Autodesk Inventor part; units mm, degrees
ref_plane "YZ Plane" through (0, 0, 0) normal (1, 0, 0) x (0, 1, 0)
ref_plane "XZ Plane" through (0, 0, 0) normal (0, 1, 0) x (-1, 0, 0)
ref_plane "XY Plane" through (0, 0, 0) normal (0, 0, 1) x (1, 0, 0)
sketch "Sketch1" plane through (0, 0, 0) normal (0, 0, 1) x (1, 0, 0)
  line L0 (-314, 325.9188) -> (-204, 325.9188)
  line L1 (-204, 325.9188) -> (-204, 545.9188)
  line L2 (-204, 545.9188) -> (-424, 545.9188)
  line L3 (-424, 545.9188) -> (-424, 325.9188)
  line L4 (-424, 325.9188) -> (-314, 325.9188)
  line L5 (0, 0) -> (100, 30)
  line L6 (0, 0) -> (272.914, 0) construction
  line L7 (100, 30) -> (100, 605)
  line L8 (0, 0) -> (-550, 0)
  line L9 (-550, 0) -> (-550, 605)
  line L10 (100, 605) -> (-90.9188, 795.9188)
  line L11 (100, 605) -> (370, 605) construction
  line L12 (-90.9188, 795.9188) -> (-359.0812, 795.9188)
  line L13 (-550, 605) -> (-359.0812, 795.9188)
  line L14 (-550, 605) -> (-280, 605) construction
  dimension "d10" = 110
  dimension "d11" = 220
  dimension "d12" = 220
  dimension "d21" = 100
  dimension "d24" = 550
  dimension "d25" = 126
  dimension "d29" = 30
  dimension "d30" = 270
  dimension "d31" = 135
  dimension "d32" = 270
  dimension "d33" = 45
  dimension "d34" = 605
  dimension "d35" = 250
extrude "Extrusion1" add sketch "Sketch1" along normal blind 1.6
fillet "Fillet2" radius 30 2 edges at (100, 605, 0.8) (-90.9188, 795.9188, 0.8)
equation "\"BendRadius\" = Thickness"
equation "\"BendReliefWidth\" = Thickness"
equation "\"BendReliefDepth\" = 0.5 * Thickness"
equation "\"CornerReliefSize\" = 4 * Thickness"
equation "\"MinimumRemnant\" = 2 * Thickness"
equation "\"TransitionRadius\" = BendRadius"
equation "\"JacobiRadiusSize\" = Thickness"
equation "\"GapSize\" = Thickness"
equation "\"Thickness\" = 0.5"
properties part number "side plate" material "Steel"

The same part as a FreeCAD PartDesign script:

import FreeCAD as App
import Part
import Sketcher

V = App.Vector
Q = App.Units.Quantity


def edges_at(feature, points):
    """Names of the edges that pass closest to the given points."""
    edges = feature.Shape.Edges
    near = lambda p: min(range(len(edges)), key=lambda i: edges[i].distToShape(Part.Vertex(*p))[0])
    return sorted({f"Edge{near(p) + 1}" for p in points})

doc = App.newDocument("Part")
body = doc.addObject("PartDesign::Body", "Body")

# Sketch on XY plane
sketch1 = body.newObject("Sketcher::SketchObject", "Sketch")
sketch1.AttachmentSupport = (doc.getObject("XY_Plane"), [""])
sketch1.MapMode = "FlatFace"
sketch1.addGeometry([
    Part.LineSegment(V(-550, 0, 0), V(0, 0, 0)),  # 0
    Part.LineSegment(V(0, 0, 0), V(100, 30, 0)),  # 1
    Part.LineSegment(V(100, 30, 0), V(100, 605, 0)),  # 2
    Part.LineSegment(V(100, 605, 0), V(-90.9188, 795.9188, 0)),  # 3
    Part.LineSegment(V(-90.9188, 795.9188, 0), V(-359.0812, 795.9188, 0)),  # 4
    Part.LineSegment(V(-359.0812, 795.9188, 0), V(-550, 605, 0)),  # 5
    Part.LineSegment(V(-550, 605, 0), V(-550, 0, 0)),  # 6
    Part.LineSegment(V(-204, 325.9188, 0), V(-424, 325.9188, 0)),  # 7
    Part.LineSegment(V(-424, 325.9188, 0), V(-424, 545.9188, 0)),  # 8
    Part.LineSegment(V(-424, 545.9188, 0), V(-204, 545.9188, 0)),  # 9
    Part.LineSegment(V(-204, 545.9188, 0), V(-204, 325.9188, 0)),  # 10
], False)
sketch1.addConstraint([
    Sketcher.Constraint("Coincident", 0, 2, 1, 1),
    Sketcher.Constraint("Coincident", 1, 2, 2, 1),
    Sketcher.Constraint("Coincident", 2, 2, 3, 1),
    Sketcher.Constraint("Coincident", 3, 2, 4, 1),
    Sketcher.Constraint("Coincident", 4, 2, 5, 1),
    Sketcher.Constraint("Coincident", 5, 2, 6, 1),
    Sketcher.Constraint("Coincident", 6, 2, 0, 1),
    Sketcher.Constraint("Coincident", 7, 2, 8, 1),
    Sketcher.Constraint("Coincident", 8, 2, 9, 1),
    Sketcher.Constraint("Coincident", 9, 2, 10, 1),
    Sketcher.Constraint("Coincident", 10, 2, 7, 1),
    Sketcher.Constraint("Horizontal", 0),
    Sketcher.Constraint("Vertical", 2),
    Sketcher.Constraint("Horizontal", 4),
    Sketcher.Constraint("Vertical", 6),
    Sketcher.Constraint("Horizontal", 7),
    Sketcher.Constraint("Vertical", 8),
    Sketcher.Constraint("Horizontal", 9),
    Sketcher.Constraint("Vertical", 10),
    Sketcher.Constraint("Coincident", 0, 2, -1, 1),
    Sketcher.Constraint("Perpendicular", 3, 5),
    Sketcher.Constraint("Horizontal", 2, 2, 5, 2),
    Sketcher.Constraint("Equal", 9, 8),
    Sketcher.Constraint("Equal", 3, 5),
    Sketcher.Constraint("DistanceX", 0, 1, 0, 2, Q("550 mm")),
    Sketcher.Constraint("DistanceX", 7, 2, 7, 1, Q("220 mm")),
    Sketcher.Constraint("DistanceY", 6, 2, 6, 1, Q("605 mm")),
    Sketcher.Constraint("Distance", 3, Q("270 mm")),
    Sketcher.Constraint("DistanceX", -1, 1, 1, 2, Q("100 mm")),
    Sketcher.Constraint("DistanceY", -1, 1, 1, 2, Q("30 mm")),
    Sketcher.Constraint("DistanceX", 5, 2, 7, 2, Q("126 mm")),
    Sketcher.Constraint("DistanceY", 8, 2, 4, 2, Q("250 mm")),
])
pad1 = body.newObject("PartDesign::Pad", "Pad")
pad1.Profile = sketch1
pad1.Length = 1.6
doc.recompute()

fillet = body.newObject("PartDesign::Fillet", "Fillet")
fillet.Base = (pad1, edges_at(pad1, [(100, 605, 0.8), (-90.919, 795.919, 0.8)]))
fillet.Radius = 30

doc.recompute()
